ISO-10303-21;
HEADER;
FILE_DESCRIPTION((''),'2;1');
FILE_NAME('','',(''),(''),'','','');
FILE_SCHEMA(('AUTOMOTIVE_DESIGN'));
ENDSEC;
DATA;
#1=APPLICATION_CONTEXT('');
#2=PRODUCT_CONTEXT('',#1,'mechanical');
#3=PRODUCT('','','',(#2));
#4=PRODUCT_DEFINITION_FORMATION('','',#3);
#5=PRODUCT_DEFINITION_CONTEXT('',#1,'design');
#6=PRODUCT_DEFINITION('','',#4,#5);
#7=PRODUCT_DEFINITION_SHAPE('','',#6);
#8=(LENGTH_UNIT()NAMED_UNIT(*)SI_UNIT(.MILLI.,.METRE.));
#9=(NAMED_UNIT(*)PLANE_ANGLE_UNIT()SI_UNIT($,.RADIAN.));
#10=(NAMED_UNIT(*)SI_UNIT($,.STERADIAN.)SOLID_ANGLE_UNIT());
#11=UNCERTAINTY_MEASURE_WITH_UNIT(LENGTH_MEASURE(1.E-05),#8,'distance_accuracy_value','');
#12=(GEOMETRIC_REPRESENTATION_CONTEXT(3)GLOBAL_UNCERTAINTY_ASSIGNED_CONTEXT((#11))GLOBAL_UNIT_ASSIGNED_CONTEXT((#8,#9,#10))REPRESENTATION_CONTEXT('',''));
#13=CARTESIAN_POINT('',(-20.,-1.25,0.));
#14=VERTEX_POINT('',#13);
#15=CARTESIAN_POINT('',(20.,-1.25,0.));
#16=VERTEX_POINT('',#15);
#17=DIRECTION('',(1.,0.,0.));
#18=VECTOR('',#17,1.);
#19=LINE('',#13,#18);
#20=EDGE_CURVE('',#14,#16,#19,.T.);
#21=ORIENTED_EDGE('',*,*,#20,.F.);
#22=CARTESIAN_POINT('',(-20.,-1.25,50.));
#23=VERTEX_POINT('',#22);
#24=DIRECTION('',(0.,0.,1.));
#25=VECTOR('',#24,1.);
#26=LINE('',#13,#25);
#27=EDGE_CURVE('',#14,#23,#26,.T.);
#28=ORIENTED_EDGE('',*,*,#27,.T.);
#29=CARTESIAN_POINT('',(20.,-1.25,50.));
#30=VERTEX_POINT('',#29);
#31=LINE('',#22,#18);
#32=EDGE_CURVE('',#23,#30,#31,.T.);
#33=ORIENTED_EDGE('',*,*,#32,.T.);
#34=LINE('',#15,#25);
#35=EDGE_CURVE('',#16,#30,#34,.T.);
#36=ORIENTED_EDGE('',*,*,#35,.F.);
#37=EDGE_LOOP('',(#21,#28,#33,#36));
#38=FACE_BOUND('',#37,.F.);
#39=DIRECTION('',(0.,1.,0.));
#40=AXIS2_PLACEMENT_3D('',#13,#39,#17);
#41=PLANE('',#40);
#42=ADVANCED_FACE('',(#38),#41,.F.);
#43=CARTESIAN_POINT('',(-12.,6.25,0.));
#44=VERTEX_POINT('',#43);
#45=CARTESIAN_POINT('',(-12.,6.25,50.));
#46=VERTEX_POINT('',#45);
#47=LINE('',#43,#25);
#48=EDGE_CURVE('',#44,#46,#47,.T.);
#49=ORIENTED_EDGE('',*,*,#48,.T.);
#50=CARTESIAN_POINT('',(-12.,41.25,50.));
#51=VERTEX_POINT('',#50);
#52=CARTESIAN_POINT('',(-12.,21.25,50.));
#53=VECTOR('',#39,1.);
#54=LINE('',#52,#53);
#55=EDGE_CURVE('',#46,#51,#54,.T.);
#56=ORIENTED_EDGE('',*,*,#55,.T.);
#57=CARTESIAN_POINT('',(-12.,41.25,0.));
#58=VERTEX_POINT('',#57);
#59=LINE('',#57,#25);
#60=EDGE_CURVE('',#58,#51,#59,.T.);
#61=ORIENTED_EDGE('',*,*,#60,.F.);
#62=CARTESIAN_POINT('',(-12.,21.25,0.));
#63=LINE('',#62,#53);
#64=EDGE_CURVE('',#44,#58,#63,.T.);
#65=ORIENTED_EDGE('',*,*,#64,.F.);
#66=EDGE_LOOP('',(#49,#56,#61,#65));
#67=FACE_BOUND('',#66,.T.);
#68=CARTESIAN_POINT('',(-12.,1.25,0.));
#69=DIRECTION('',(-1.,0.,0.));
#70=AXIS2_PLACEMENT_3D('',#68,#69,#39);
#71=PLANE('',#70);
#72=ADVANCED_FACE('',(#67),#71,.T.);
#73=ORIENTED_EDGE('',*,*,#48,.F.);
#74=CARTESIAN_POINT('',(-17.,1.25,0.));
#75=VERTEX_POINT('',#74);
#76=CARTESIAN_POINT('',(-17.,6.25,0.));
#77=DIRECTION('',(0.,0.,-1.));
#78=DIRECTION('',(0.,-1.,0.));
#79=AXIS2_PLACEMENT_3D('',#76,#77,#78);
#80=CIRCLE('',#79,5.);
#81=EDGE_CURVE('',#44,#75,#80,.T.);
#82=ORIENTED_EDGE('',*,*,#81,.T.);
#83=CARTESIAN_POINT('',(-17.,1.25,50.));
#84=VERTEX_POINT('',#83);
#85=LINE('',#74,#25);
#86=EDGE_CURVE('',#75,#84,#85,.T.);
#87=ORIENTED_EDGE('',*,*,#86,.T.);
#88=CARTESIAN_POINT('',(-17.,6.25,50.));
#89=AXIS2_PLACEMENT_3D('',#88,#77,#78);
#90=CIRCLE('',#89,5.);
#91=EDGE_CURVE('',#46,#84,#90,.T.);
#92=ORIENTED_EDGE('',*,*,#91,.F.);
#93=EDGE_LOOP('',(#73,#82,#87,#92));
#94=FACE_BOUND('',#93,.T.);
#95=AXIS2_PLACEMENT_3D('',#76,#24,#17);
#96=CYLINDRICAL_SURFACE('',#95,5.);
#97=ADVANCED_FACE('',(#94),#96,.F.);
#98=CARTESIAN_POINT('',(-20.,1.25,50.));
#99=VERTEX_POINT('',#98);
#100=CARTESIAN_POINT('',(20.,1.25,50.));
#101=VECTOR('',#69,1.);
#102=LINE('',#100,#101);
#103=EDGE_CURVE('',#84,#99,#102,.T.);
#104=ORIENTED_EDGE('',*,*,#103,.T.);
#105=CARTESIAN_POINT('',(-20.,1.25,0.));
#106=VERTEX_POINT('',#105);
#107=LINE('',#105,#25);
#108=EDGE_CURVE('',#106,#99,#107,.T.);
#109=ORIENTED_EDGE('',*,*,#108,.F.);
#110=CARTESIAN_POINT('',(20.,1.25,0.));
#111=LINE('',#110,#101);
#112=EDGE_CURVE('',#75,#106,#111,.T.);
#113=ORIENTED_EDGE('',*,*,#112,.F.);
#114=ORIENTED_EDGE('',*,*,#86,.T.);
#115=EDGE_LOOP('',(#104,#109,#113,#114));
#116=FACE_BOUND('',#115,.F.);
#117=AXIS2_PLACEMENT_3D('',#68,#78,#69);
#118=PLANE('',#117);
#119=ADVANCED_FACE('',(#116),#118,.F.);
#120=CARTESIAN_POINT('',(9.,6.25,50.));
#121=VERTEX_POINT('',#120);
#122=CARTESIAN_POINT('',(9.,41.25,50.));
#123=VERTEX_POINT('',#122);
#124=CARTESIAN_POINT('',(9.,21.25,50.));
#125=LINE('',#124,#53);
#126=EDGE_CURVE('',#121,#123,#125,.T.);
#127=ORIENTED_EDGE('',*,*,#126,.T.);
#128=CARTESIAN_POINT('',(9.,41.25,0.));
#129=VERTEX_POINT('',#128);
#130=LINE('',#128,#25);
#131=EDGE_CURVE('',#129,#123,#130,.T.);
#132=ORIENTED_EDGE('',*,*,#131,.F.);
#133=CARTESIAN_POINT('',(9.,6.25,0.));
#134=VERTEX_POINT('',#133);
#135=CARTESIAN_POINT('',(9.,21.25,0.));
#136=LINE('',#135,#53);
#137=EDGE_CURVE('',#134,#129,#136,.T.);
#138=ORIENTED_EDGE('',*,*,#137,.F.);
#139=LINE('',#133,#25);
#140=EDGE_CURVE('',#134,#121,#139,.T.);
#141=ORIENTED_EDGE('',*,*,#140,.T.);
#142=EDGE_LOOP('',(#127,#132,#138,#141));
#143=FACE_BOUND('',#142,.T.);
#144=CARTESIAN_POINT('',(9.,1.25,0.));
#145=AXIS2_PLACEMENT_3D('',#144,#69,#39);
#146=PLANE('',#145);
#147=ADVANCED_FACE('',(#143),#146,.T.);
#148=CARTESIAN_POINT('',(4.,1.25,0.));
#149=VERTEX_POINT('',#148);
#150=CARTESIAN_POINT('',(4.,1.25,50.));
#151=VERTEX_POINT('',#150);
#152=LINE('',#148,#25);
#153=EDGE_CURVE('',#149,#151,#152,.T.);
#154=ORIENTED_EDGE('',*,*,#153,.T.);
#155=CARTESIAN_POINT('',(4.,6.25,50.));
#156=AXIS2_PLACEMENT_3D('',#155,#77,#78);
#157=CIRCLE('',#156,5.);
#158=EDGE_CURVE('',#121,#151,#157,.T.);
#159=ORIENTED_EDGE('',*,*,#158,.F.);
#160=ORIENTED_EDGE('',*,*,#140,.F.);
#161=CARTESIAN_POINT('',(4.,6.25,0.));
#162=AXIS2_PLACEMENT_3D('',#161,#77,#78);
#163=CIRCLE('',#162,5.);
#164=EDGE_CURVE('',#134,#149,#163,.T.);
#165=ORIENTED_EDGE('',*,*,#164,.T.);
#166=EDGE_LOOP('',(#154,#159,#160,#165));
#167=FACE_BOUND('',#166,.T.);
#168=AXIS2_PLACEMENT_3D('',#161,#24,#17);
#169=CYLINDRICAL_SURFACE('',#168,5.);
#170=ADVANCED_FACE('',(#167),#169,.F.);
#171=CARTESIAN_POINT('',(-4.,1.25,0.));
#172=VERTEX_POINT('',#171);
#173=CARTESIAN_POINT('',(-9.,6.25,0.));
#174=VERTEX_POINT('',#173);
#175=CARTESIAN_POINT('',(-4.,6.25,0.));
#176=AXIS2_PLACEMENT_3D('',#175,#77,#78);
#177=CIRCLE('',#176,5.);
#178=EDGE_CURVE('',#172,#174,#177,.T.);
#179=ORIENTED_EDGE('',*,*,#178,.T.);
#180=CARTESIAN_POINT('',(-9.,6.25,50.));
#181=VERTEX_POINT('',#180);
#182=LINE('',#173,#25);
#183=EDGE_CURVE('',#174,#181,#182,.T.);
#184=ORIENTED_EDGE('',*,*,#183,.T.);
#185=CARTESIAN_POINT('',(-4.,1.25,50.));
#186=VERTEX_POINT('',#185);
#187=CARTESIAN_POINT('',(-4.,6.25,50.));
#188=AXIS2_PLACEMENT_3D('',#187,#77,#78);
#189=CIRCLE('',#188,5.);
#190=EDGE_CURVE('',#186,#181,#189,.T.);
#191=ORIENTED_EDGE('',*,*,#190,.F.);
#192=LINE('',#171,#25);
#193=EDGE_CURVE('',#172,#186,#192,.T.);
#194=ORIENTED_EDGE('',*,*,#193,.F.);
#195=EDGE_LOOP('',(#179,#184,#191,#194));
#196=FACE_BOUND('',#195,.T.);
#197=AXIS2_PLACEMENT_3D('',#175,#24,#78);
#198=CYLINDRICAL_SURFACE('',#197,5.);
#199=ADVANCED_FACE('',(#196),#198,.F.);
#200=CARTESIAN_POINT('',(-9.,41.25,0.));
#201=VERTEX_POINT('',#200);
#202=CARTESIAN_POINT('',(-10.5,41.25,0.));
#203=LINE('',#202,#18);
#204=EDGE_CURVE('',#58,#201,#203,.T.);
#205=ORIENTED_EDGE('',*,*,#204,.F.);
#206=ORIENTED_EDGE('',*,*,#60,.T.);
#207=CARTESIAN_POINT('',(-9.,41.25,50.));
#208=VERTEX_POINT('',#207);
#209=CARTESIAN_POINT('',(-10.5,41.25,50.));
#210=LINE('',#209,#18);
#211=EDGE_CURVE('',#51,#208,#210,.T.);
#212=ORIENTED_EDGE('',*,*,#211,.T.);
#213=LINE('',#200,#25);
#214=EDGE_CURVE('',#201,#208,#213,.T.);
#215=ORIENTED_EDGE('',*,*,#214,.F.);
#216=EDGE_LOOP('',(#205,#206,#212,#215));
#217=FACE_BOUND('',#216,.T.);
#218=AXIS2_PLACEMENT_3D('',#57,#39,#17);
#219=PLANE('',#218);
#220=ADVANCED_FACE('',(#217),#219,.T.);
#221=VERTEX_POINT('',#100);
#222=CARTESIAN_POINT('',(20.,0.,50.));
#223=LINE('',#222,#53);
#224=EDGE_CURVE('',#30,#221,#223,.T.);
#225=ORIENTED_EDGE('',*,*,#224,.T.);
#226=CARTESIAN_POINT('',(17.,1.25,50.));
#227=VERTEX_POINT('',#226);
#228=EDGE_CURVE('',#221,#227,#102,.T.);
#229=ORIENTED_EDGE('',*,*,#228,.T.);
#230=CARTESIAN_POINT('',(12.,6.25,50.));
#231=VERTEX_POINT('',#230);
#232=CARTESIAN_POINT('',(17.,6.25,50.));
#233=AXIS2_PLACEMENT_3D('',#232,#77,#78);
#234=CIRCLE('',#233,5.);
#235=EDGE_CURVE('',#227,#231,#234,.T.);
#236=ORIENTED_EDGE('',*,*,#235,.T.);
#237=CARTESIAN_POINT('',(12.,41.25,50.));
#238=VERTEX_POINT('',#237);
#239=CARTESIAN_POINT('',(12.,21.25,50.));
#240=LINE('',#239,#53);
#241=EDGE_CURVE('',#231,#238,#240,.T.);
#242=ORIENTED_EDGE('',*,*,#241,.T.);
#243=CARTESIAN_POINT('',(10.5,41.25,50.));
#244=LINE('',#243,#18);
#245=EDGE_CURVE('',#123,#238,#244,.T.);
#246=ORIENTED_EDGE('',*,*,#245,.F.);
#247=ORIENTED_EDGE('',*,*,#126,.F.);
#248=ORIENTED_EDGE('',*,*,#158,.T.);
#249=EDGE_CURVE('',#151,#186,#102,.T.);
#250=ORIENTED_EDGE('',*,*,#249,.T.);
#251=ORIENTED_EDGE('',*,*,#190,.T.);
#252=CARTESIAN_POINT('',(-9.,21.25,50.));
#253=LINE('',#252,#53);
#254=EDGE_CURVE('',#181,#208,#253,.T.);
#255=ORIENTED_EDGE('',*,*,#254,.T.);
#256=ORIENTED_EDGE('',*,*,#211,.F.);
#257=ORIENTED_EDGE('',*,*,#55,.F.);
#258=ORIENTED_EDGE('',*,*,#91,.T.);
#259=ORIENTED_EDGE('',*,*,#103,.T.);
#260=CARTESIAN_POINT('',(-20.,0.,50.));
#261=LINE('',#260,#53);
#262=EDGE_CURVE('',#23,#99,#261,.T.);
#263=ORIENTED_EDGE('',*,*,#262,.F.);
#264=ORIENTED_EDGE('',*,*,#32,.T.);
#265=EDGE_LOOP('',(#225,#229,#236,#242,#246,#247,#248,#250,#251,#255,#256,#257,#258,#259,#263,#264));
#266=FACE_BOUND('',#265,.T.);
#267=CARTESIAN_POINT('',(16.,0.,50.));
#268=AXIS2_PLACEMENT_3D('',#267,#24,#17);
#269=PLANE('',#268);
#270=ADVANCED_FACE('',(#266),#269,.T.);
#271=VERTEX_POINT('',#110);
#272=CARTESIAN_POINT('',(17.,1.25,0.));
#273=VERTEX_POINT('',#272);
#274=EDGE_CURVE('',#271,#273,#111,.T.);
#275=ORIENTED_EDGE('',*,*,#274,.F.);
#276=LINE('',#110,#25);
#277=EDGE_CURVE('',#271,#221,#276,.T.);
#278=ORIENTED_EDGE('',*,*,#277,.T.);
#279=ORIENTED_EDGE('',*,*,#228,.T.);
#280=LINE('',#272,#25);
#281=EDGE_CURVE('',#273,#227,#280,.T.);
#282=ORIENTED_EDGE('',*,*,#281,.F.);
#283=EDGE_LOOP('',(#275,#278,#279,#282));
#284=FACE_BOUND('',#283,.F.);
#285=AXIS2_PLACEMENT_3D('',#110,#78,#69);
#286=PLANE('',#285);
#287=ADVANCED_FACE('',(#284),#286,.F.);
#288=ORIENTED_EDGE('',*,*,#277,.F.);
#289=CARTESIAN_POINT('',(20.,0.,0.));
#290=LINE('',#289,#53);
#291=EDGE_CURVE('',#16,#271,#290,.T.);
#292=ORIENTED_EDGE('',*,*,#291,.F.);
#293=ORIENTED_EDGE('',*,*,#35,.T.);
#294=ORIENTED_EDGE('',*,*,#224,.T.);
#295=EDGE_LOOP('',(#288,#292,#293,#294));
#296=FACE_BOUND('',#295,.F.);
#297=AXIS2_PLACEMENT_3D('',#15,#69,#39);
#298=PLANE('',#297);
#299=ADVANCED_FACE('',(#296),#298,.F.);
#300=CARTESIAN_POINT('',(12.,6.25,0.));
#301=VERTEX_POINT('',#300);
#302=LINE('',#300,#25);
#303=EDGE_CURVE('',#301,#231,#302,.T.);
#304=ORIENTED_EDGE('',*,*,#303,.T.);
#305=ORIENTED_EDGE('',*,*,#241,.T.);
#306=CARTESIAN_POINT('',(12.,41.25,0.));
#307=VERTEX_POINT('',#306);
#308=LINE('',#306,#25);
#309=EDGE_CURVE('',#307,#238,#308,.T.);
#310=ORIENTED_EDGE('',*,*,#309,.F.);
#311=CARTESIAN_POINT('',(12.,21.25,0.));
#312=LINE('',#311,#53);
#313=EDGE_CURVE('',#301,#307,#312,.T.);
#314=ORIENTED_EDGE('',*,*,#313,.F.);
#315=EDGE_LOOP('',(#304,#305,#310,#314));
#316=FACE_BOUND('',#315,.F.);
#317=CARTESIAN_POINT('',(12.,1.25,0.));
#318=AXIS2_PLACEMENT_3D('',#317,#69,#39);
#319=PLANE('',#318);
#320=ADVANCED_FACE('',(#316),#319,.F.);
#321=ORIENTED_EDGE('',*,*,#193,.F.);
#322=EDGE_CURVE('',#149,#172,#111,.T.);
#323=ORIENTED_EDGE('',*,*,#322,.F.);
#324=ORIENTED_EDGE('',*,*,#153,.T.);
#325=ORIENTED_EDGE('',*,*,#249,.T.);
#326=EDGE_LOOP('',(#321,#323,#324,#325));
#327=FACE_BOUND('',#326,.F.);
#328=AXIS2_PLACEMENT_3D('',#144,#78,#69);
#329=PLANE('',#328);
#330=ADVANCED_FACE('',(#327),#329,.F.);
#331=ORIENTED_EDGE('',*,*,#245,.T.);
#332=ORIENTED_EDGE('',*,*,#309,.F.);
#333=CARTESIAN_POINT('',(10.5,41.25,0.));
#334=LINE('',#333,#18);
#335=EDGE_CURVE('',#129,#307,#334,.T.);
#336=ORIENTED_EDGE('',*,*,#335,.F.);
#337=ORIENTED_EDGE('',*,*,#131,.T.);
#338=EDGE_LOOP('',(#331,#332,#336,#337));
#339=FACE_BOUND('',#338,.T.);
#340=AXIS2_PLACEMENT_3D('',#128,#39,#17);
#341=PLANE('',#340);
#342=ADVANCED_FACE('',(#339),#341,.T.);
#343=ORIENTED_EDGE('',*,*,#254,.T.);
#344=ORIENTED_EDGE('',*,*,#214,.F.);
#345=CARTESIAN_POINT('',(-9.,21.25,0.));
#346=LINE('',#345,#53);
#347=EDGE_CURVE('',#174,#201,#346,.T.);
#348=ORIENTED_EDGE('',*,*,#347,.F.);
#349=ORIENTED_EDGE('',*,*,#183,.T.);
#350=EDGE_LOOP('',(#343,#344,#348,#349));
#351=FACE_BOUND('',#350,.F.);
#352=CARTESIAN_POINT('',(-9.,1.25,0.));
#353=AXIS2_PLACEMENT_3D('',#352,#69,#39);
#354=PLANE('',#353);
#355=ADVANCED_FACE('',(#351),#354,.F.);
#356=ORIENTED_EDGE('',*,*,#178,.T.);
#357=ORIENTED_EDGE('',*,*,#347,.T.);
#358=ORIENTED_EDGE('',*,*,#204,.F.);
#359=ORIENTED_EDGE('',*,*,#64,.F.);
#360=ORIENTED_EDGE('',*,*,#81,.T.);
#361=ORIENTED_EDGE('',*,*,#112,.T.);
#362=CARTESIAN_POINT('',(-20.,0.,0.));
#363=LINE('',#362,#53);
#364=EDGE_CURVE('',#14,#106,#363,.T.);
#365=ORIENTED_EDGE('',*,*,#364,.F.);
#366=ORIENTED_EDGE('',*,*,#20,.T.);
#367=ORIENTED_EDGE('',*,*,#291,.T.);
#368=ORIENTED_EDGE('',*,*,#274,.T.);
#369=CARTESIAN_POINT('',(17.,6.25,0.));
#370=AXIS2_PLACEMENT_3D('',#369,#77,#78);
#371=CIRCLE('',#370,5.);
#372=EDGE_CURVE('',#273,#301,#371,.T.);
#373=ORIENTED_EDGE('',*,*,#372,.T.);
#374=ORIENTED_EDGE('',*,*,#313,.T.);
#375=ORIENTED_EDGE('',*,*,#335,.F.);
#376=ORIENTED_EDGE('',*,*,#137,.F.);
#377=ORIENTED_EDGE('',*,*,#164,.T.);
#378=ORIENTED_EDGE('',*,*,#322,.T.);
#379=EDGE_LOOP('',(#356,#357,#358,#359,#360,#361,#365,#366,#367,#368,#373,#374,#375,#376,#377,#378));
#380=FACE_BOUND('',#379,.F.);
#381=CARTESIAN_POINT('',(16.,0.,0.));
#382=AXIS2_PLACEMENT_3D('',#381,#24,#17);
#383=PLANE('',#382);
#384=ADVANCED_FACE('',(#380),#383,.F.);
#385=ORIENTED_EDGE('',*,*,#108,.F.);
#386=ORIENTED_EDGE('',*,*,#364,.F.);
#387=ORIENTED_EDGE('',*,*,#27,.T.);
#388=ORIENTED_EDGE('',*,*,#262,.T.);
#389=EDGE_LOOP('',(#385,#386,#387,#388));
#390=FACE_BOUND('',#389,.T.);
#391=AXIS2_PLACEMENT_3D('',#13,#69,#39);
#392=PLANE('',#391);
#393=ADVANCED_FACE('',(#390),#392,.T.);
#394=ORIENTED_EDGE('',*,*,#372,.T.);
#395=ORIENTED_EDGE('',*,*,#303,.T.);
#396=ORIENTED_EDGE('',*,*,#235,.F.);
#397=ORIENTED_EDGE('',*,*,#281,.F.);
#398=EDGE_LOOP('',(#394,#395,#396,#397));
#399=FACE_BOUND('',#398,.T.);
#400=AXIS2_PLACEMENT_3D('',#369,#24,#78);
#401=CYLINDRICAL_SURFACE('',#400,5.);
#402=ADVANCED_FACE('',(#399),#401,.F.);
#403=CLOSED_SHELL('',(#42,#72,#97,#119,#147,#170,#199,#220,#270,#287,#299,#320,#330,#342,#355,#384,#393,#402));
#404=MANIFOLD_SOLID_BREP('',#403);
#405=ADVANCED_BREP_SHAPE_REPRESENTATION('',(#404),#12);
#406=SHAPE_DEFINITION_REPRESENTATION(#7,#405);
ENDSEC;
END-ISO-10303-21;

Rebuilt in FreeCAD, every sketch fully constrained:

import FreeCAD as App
import Part
import Sketcher
from FreeCAD import Vector
Q = App.Units.Quantity


def edges_at(feature, points):
    """Names of the edges that pass closest to the given points."""
    edges = feature.Shape.Edges
    near = lambda p: min(range(len(edges)), key=lambda i: edges[i].distToShape(Part.Vertex(*p))[0])
    return sorted({f"Edge{near(p) + 1}" for p in points})


def add_polygon(sketch, points):
    """Adds a closed chain of lines whose ends are joined by coincident constraints."""
    first, n = sketch.GeometryCount, len(points)
    for a, b in zip(points, points[1:] + points[:1]):
        sketch.addGeometry(Part.LineSegment(App.Vector(*a, 0), App.Vector(*b, 0)), False)
    for i in range(n):
        sketch.addConstraint(Sketcher.Constraint("Coincident", first + i, 2, first + (i + 1) % n, 1))

doc = App.newDocument("Part")
body = doc.addObject("PartDesign::Body", "Body")

sketch1 = body.newObject("Sketcher::SketchObject", "Sketch")
sketch1.AttachmentSupport = (doc.getObject("XY_Plane"), [""])
sketch1.MapMode = "FlatFace"
add_polygon(sketch1, [(20, -1.25), (20, 1.25), (12, 1.25), (12, 41.25), (9, 41.25), (9, 1.25), (-9, 1.25), (-9, 41.25), (-12, 41.25), (-12, 1.25), (-20, 1.25), (-20, -1.25)])
sketch1.addConstraint([
    Sketcher.Constraint("Vertical", 0),
    Sketcher.Constraint("Horizontal", 1),
    Sketcher.Constraint("Vertical", 2),
    Sketcher.Constraint("Horizontal", 3),
    Sketcher.Constraint("Vertical", 4),
    Sketcher.Constraint("Horizontal", 5),
    Sketcher.Constraint("Vertical", 6),
    Sketcher.Constraint("Horizontal", 7),
    Sketcher.Constraint("Vertical", 8),
    Sketcher.Constraint("Horizontal", 9),
    Sketcher.Constraint("Vertical", 10),
    Sketcher.Constraint("Horizontal", 11),
    Sketcher.Constraint("Symmetric", 0, 2, 10, 2, -1, 1),
    Sketcher.Constraint("Symmetric", 3, 2, 6, 2, -2),
    Sketcher.Constraint("Symmetric", 1, 2, 8, 2, -2),
    Sketcher.Constraint("Horizontal", 1, 2, 4, 2),
    Sketcher.Constraint("Equal", 11, 2),
    Sketcher.Constraint("DistanceX", 1, 2, 1, 1, Q("8 mm")),
    Sketcher.Constraint("DistanceX", 3, 2, 3, 1, Q("3 mm")),
    Sketcher.Constraint("DistanceX", 5, 2, 5, 1, Q("18 mm")),
    Sketcher.Constraint("DistanceY", 0, 1, 0, 2, Q("2.5 mm")),
])
pad1 = body.newObject("PartDesign::Pad", "Pad")
pad1.Profile = sketch1
pad1.Length = 50
doc.recompute()

fillet = body.newObject("PartDesign::Fillet", "Fillet")
fillet.Base = (pad1, edges_at(pad1, [
    (12, 1.25, 25),
    (-12, 1.25, 25),
    (-9, 1.25, 25),
    (9, 1.25, 25),
]))
fillet.Radius = 5

doc.recompute()
